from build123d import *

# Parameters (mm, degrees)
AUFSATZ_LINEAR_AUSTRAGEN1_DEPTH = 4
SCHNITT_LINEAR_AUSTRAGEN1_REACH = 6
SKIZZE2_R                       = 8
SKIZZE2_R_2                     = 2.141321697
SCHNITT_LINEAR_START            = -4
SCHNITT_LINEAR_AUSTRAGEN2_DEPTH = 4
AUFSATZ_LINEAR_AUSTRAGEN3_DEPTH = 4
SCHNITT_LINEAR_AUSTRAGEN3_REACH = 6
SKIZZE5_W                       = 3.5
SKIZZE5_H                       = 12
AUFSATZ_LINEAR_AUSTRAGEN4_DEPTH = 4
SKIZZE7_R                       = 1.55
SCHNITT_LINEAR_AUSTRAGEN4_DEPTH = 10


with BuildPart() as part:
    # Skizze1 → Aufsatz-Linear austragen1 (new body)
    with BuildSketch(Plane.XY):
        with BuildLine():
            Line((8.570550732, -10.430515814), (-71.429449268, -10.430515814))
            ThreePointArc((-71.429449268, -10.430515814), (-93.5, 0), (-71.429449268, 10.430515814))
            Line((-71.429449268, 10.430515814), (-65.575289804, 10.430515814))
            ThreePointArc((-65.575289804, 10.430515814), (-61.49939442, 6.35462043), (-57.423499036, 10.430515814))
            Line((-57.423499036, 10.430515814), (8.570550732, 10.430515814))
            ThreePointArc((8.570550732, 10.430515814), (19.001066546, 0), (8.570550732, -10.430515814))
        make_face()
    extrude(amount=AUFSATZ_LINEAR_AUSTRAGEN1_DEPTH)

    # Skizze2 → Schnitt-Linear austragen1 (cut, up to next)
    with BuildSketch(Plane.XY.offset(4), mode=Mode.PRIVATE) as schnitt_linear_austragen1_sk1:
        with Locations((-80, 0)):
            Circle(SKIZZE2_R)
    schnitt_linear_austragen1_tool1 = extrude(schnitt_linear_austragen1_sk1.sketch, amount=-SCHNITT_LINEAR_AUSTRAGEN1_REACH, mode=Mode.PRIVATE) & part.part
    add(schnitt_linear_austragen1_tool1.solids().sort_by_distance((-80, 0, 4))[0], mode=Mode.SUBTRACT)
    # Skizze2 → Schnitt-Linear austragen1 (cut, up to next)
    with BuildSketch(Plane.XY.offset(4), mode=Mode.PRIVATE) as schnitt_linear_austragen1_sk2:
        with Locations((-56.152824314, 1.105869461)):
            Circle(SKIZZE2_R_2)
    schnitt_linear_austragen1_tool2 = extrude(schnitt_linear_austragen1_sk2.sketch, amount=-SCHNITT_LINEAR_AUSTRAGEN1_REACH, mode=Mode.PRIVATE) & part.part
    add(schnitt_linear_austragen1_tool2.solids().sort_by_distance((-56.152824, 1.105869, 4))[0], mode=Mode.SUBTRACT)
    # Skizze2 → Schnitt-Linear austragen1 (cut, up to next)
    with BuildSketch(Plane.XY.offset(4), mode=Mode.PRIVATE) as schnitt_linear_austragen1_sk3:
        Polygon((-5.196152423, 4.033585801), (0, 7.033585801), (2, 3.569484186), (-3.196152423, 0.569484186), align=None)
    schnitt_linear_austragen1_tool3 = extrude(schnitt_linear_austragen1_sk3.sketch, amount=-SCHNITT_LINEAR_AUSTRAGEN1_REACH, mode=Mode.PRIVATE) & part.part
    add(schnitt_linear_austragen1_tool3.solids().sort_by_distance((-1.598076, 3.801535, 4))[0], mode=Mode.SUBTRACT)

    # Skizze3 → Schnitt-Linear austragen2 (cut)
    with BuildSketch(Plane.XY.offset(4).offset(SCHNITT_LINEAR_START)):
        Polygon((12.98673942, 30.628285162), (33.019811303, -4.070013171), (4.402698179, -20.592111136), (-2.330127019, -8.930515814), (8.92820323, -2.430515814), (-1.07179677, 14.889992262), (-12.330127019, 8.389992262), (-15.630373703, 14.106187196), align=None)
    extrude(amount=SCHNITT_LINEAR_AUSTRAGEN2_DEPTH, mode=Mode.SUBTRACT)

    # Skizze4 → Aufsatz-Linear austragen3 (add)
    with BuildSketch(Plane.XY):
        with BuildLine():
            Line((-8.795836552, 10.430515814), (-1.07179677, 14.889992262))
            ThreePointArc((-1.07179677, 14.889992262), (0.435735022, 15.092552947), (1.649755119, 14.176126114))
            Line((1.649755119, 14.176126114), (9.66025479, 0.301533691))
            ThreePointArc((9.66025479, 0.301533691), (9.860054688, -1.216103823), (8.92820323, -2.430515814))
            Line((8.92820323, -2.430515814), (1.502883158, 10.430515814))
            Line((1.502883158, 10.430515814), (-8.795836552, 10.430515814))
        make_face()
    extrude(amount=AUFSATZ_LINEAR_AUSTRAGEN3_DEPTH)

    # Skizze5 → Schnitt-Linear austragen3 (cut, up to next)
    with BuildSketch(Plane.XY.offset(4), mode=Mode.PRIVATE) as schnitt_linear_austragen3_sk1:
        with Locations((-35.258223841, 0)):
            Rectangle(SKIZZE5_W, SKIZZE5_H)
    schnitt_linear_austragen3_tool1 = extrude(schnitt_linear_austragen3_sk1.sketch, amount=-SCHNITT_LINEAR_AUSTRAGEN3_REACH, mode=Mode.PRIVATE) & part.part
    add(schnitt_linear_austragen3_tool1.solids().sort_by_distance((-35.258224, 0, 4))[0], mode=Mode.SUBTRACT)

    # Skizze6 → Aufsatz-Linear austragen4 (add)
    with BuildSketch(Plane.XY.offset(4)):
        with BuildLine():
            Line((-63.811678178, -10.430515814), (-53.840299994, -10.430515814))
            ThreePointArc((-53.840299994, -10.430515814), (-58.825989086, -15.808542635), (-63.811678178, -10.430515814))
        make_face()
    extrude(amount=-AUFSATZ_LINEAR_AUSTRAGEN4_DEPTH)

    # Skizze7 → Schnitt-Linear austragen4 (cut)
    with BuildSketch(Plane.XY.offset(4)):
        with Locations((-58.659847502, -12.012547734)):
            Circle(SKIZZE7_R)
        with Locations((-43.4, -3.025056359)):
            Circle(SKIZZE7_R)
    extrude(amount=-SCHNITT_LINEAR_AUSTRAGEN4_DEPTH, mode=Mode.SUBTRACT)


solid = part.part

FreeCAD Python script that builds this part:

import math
import FreeCAD as App
import Part
import Sketcher
from FreeCAD import Vector
Q = App.Units.Quantity


def add_polygon(sketch, points):
    """Adds a closed chain of lines whose ends are joined by coincident constraints."""
    first, n = sketch.GeometryCount, len(points)
    for a, b in zip(points, points[1:] + points[:1]):
        sketch.addGeometry(Part.LineSegment(App.Vector(*a, 0), App.Vector(*b, 0)), False)
    for i in range(n):
        sketch.addConstraint(Sketcher.Constraint("Coincident", first + i, 2, first + (i + 1) % n, 1))

doc = App.newDocument("Part")
body = doc.addObject("PartDesign::Body", "Body")

# Sketch on XY plane
sketch1 = doc.addObject("Sketcher::SketchObject", "Sketch")
body.addObject(sketch1)
sketch1.AttachmentSupport = (doc.XY_Plane, [""])
sketch1.MapMode = "FlatFace"
sketch1.addGeometry(Part.LineSegment(Vector(-71.4, -10.4, 0), Vector(8.6, -10.4, 0)), False)
sketch1.addGeometry(Part.ArcOfCircle(Part.Circle(Vector(8.6, 0, 0), Vector(0, 0, 1), 10.4), math.radians(-90), math.radians(90)), False)
sketch1.addGeometry(Part.LineSegment(Vector(8.6, 10.4, 0), Vector(-57.4, 10.4, 0)), False)
sketch1.addGeometry(Part.ArcOfCircle(Part.Circle(Vector(-61.5, 10.4, 0), Vector(0, 0, 1), 4.1), math.radians(180), math.radians(360)), False)
sketch1.addGeometry(Part.LineSegment(Vector(-65.6, 10.4, 0), Vector(-71.4, 10.4, 0)), False)
sketch1.addGeometry(Part.ArcOfCircle(Part.Circle(Vector(-80, 0, 0), Vector(0, 0, 1), 13.5), math.radians(51), math.radians(309)), False)
sketch1.addConstraint(Sketcher.Constraint("Tangent", 0, 2, 1, 1))
sketch1.addConstraint(Sketcher.Constraint("Tangent", 1, 2, 2, 1))
sketch1.addConstraint(Sketcher.Constraint("Coincident", 2, 2, 3, 2))
sketch1.addConstraint(Sketcher.Constraint("Coincident", 3, 1, 4, 1))
sketch1.addConstraint(Sketcher.Constraint("Coincident", 4, 2, 5, 1))
sketch1.addConstraint(Sketcher.Constraint("Coincident", 5, 2, 0, 1))
sketch1.addConstraint(Sketcher.Constraint("Horizontal", 0))
sketch1.addConstraint(Sketcher.Constraint("Horizontal", 2))
sketch1.addConstraint(Sketcher.Constraint("Horizontal", 4))
sketch1.addConstraint(Sketcher.Constraint("Symmetric", 4, 2, 5, 2, -1))
sketch1.addConstraint(Sketcher.Constraint("PointOnObject", 1, 3, -1))
sketch1.addConstraint(Sketcher.Constraint("Horizontal", 3, 3, 1, 2))
sketch1.addConstraint(Sketcher.Constraint("Radius", 5, Q("13.5 mm")))
sketch1.addConstraint(Sketcher.Constraint("DistanceX", 0, 1, 0, 2, Q("80 mm")))
sketch1.addConstraint(Sketcher.Constraint("DistanceX", 5, 3, -1, 1, Q("80 mm")))
sketch1.addConstraint(Sketcher.Constraint("Radius", 1, Q("10.430516 mm")))
sketch1.addConstraint(Sketcher.Constraint("Radius", 3, Q("4.075895 mm")))
sketch1.addConstraint(Sketcher.Constraint("DistanceX", 2, 2, 2, 1, Q("65.99405 mm")))
pad1 = doc.addObject("PartDesign::Pad", "Pad")
body.addObject(pad1)
pad1.Profile = sketch1
pad1.Length = 4

# Sketch on XY plane
sketch2 = doc.addObject("Sketcher::SketchObject", "Sketch001")
body.addObject(sketch2)
sketch2.AttachmentSupport = (doc.XY_Plane, [""])
sketch2.MapMode = "FlatFace"
sketch2.AttachmentOffset = App.Placement(Vector(0, 0, 4), App.Rotation())
sketch2.addGeometry(Part.Circle(Vector(-80, 0, 0), Vector(0, 0, 1), 8), False)
sketch2.addConstraint(Sketcher.Constraint("PointOnObject", 0, 3, -1))
sketch2.addConstraint(Sketcher.Constraint("Diameter", 0, Q("16 mm")))
sketch2.addConstraint(Sketcher.Constraint("DistanceX", 0, 3, -1, 1, Q("80 mm")))
pocket1 = doc.addObject("PartDesign::Pocket", "Pocket")
body.addObject(pocket1)
pocket1.Profile = sketch2
pocket1.Type = "UpToFirst"

# Sketch on XY plane
sketch3 = doc.addObject("Sketcher::SketchObject", "Sketch002")
body.addObject(sketch3)
sketch3.AttachmentSupport = (doc.XY_Plane, [""])
sketch3.MapMode = "FlatFace"
sketch3.AttachmentOffset = App.Placement(Vector(0, 0, 4), App.Rotation())
sketch3.addGeometry(Part.Circle(Vector(-56.2, 1.1, 0), Vector(0, 0, 1), 2.1), False)
sketch3.addConstraint(Sketcher.Constraint("Diameter", 0, Q("4.282643 mm")))
sketch3.addConstraint(Sketcher.Constraint("DistanceY", -1, 1, 0, 3, Q("1.105869 mm")))
sketch3.addConstraint(Sketcher.Constraint("DistanceX", 0, 3, -1, 1, Q("56.152824 mm")))
pocket2 = doc.addObject("PartDesign::Pocket", "Pocket001")
body.addObject(pocket2)
pocket2.Profile = sketch3
pocket2.Type = "UpToFirst"

# Sketch on XY plane
sketch4 = doc.addObject("Sketcher::SketchObject", "Sketch003")
body.addObject(sketch4)
sketch4.AttachmentSupport = (doc.XY_Plane, [""])
sketch4.MapMode = "FlatFace"
sketch4.AttachmentOffset = App.Placement(Vector(0, 0, 4), App.Rotation())
add_polygon(sketch4, [(0, 7), (-5.2, 4), (-3.2, 0.6), (2, 3.6)])  # lines 0-3
sketch4.addConstraint(Sketcher.Constraint("PointOnObject", 3, 2, -2))
sketch4.addConstraint(Sketcher.Constraint("Perpendicular", 0, 1))
sketch4.addConstraint(Sketcher.Constraint("Perpendicular", 1, 2))
sketch4.addConstraint(Sketcher.Constraint("Perpendicular", 2, 3))
sketch4.addConstraint(Sketcher.Constraint("Angle", 0, Q("-150 deg")))
sketch4.addConstraint(Sketcher.Constraint("Distance", 0, Q("6 mm")))
sketch4.addConstraint(Sketcher.Constraint("Distance", 1, Q("4 mm")))
sketch4.addConstraint(Sketcher.Constraint("DistanceY", -1, 1, 0, 2, Q("4.033586 mm")))
pocket3 = doc.addObject("PartDesign::Pocket", "Pocket002")
body.addObject(pocket3)
pocket3.Profile = sketch4
pocket3.Type = "UpToFirst"

# Sketch on XY plane
sketch5 = doc.addObject("Sketcher::SketchObject", "Sketch004")
body.addObject(sketch5)
sketch5.AttachmentSupport = (doc.XY_Plane, [""])
sketch5.MapMode = "FlatFace"
add_polygon(sketch5, [(33, -4), (13, 31), (-16, 14), (-12, 8), (-1, 15), (9, -2), (-2, -9), (4, -21)])  # lines 0-7
sketch5.addConstraint(Sketcher.Constraint("Perpendicular", 0, 1))
sketch5.addConstraint(Sketcher.Constraint("Perpendicular", 1, 2))
sketch5.addConstraint(Sketcher.Constraint("Perpendicular", 2, 3))
sketch5.addConstraint(Sketcher.Constraint("Perpendicular", 3, 4))
sketch5.addConstraint(Sketcher.Constraint("Perpendicular", 4, 5))
sketch5.addConstraint(Sketcher.Constraint("Perpendicular", 5, 6))
sketch5.addConstraint(Sketcher.Constraint("Perpendicular", 6, 7))
sketch5.addConstraint(Sketcher.Constraint("Equal", 3, 5))
sketch5.addConstraint(Sketcher.Constraint("Angle", 0, Q("120 deg")))
sketch5.addConstraint(Sketcher.Constraint("Distance", 3, Q("13 mm")))
sketch5.addConstraint(Sketcher.Constraint("Distance", 4, Q("20 mm")))
sketch5.addConstraint(Sketcher.Constraint("DistanceX", -1, 1, 6, 2, Q("4.402698 mm")))
sketch5.addConstraint(Sketcher.Constraint("DistanceY", 4, 2, 0, 2, Q("33.058801 mm")))
sketch5.addConstraint(Sketcher.Constraint("DistanceY", 6, 2, 1, 2, Q("34.698298 mm")))
sketch5.addConstraint(Sketcher.Constraint("Distance", 6, Q("13.46565 mm")))
sketch5.addConstraint(Sketcher.Constraint("DistanceY", 6, 2, -1, 1, Q("20.592111 mm")))
pocket4 = doc.addObject("PartDesign::Pocket", "Pocket003")
body.addObject(pocket4)
pocket4.Profile = sketch5
pocket4.Length = 4
pocket4.Reversed = True

# Sketch on XY plane
sketch6 = doc.addObject("Sketcher::SketchObject", "Sketch005")
body.addObject(sketch6)
sketch6.AttachmentSupport = (doc.XY_Plane, [""])
sketch6.MapMode = "FlatFace"
sketch6.addGeometry(Part.LineSegment(Vector(-1.1, 14.9, 0), Vector(-8.8, 10.4, 0)), False)
sketch6.addGeometry(Part.LineSegment(Vector(-8.8, 10.4, 0), Vector(1.5, 10.4, 0)), False)
sketch6.addGeometry(Part.LineSegment(Vector(1.5, 10.4, 0), Vector(8.9, -2.4, 0)), False)
sketch6.addGeometry(Part.ArcOfCircle(Part.Circle(Vector(7.9, -0.7, 0), Vector(0, 0, 1), 2), math.radians(-60), math.radians(30)), False)
sketch6.addGeometry(Part.LineSegment(Vector(9.7, 0.3, 0), Vector(1.6, 14.2, 0)), False)
sketch6.addGeometry(Part.ArcOfCircle(Part.Circle(Vector(-0.1, 13.2, 0), Vector(0, 0, 1), 2), math.radians(31), math.radians(120)), False)
sketch6.addConstraint(Sketcher.Constraint("Coincident", 0, 2, 1, 1))
sketch6.addConstraint(Sketcher.Constraint("Coincident", 1, 2, 2, 1))
sketch6.addConstraint(Sketcher.Constraint("Coincident", 2, 2, 3, 1))
sketch6.addConstraint(Sketcher.Constraint("Tangent", 3, 2, 4, 1))
sketch6.addConstraint(Sketcher.Constraint("Coincident", 4, 2, 5, 1))
sketch6.addConstraint(Sketcher.Constraint("Coincident", 5, 2, 0, 1))
sketch6.addConstraint(Sketcher.Constraint("Horizontal", 1))
sketch6.addConstraint(Sketcher.Constraint("Equal", 3, 5))
sketch6.addConstraint(Sketcher.Constraint("Perpendicular", 0, 2))
sketch6.addConstraint(Sketcher.Constraint("Parallel", 2, 4))
sketch6.addConstraint(Sketcher.Constraint("Radius", 3, Q("2 mm")))
sketch6.addConstraint(Sketcher.Constraint("Angle", 0, Q("-150 deg")))
sketch6.addConstraint(Sketcher.Constraint("DistanceX", 3, 3, 2, 2, Q("1 mm")))
sketch6.addConstraint(Sketcher.Constraint("DistanceX", 5, 2, 3, 3, Q("9 mm")))
sketch6.addConstraint(Sketcher.Constraint("Distance", 4, Q("16.020999 mm")))
sketch6.addConstraint(Sketcher.Constraint("DistanceX", 1, 1, 1, 2, Q("10.29872 mm")))
sketch6.addConstraint(Sketcher.Constraint("DistanceX", 5, 3, -1, 1, Q("0.071701 mm")))
sketch6.addConstraint(Sketcher.Constraint("Distance", 2, Q("14.85064 mm")))
sketch6.addConstraint(Sketcher.Constraint("DistanceY", 3, 3, -1, 1, Q("0.698465 mm")))
pad2 = doc.addObject("PartDesign::Pad", "Pad001")
body.addObject(pad2)
pad2.Profile = sketch6
pad2.Length = 4

# Sketch on XY plane
sketch7 = doc.addObject("Sketcher::SketchObject", "Sketch006")
body.addObject(sketch7)
sketch7.AttachmentSupport = (doc.XY_Plane, [""])
sketch7.MapMode = "FlatFace"
sketch7.AttachmentOffset = App.Placement(Vector(0, 0, 4), App.Rotation())
add_polygon(sketch7, [(-37, 6), (-37, -6), (-33.5, -6), (-33.5, 6)])  # lines 0-3
sketch7.addConstraint(Sketcher.Constraint("Vertical", 0))
sketch7.addConstraint(Sketcher.Constraint("Horizontal", 1))
sketch7.addConstraint(Sketcher.Constraint("Vertical", 2))
sketch7.addConstraint(Sketcher.Constraint("Horizontal", 3))
sketch7.addConstraint(Sketcher.Constraint("DistanceY", 0, 2, 0, 1, Q("12 mm")))
sketch7.addConstraint(Sketcher.Constraint("DistanceX", 1, 1, 1, 2, Q("3.5 mm")))
sketch7.addConstraint(Sketcher.Constraint("DistanceY", 0, 2, -1, 1, Q("6 mm")))
sketch7.addConstraint(Sketcher.Constraint("DistanceX", 0, 2, -1, 1, Q("37.008224 mm")))
pocket5 = doc.addObject("PartDesign::Pocket", "Pocket004")
body.addObject(pocket5)
pocket5.Profile = sketch7
pocket5.Type = "UpToFirst"

# Sketch on XY plane
sketch8 = doc.addObject("Sketcher::SketchObject", "Sketch007")
body.addObject(sketch8)
sketch8.AttachmentSupport = (doc.XY_Plane, [""])
sketch8.MapMode = "FlatFace"
sketch8.AttachmentOffset = App.Placement(Vector(0, 0, 4), App.Rotation())
sketch8.addGeometry(Part.LineSegment(Vector(-54, -10, 0), Vector(-64, -10, 0)), False)
sketch8.addGeometry(Part.ArcOfCircle(Part.Circle(Vector(-59, -11, 0), Vector(0, 0, 1), 5), math.radians(176), math.radians(364)), False)
sketch8.addConstraint(Sketcher.Constraint("Coincident", 0, 1, 1, 2))
sketch8.addConstraint(Sketcher.Constraint("Coincident", 1, 1, 0, 2))
sketch8.addConstraint(Sketcher.Constraint("Horizontal", 0))
sketch8.addConstraint(Sketcher.Constraint("Radius", 1, Q("5 mm")))
sketch8.addConstraint(Sketcher.Constraint("DistanceX", 0, 2, 0, 1, Q("9.971378 mm")))
sketch8.addConstraint(Sketcher.Constraint("DistanceX", 0, 1, -1, 1, Q("53.8403 mm")))
sketch8.addConstraint(Sketcher.Constraint("DistanceY", 1, 3, -1, 1, Q("10.808543 mm")))
pad3 = doc.addObject("PartDesign::Pad", "Pad002")
body.addObject(pad3)
pad3.Profile = sketch8
pad3.Length = 4
pad3.Reversed = True

# Sketch on XY plane
sketch9 = doc.addObject("Sketcher::SketchObject", "Sketch008")
body.addObject(sketch9)
sketch9.AttachmentSupport = (doc.XY_Plane, [""])
sketch9.MapMode = "FlatFace"
sketch9.AttachmentOffset = App.Placement(Vector(0, 0, 4), App.Rotation())
sketch9.addGeometry(Part.Circle(Vector(-58.7, -12, 0), Vector(0, 0, 1), 1.6), False)
sketch9.addGeometry(Part.Circle(Vector(-43.4, -3, 0), Vector(0, 0, 1), 1.6), False)
sketch9.addConstraint(Sketcher.Constraint("Equal", 0, 1))
sketch9.addConstraint(Sketcher.Constraint("Diameter", 0, Q("3.1 mm")))
sketch9.addConstraint(Sketcher.Constraint("DistanceX", 1, 3, -1, 1, Q("43.4 mm")))
sketch9.addConstraint(Sketcher.Constraint("DistanceY", 0, 3, 1, 3, Q("8.987491 mm")))
sketch9.addConstraint(Sketcher.Constraint("DistanceX", 0, 3, -1, 1, Q("58.659848 mm")))
sketch9.addConstraint(Sketcher.Constraint("DistanceY", 0, 3, -1, 1, Q("12.012548 mm")))
pocket6 = doc.addObject("PartDesign::Pocket", "Pocket005")
body.addObject(pocket6)
pocket6.Profile = sketch9
pocket6.Length = 10

doc.recompute()
